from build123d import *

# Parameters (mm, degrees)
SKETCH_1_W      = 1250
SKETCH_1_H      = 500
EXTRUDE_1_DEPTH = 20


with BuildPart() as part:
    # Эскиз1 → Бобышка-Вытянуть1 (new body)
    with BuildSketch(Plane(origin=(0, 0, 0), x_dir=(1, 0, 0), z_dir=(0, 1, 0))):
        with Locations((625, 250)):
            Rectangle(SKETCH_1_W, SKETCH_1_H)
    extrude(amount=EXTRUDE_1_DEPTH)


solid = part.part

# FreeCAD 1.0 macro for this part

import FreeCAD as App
import Part
import Sketcher

V = App.Vector
Q = App.Units.Quantity

doc = App.newDocument("Part")
body = doc.addObject("PartDesign::Body", "Body")

# Sketch on XZ plane
sketch1 = body.newObject("Sketcher::SketchObject", "Sketch")
sketch1.AttachmentSupport = (doc.getObject("XZ_Plane"), [""])
sketch1.MapMode = "FlatFace"
sketch1.addGeometry(Part.LineSegment(V(0, -500, 0), V(0, 0, 0)), False)
sketch1.addGeometry(Part.LineSegment(V(0, 0, 0), V(1250, 0, 0)), False)
sketch1.addGeometry(Part.LineSegment(V(1250, 0, 0), V(1250, -500, 0)), False)
sketch1.addGeometry(Part.LineSegment(V(1250, -500, 0), V(0, -500, 0)), False)
sketch1.addConstraint(Sketcher.Constraint("Coincident", 0, 2, 1, 1))
sketch1.addConstraint(Sketcher.Constraint("Coincident", 1, 2, 2, 1))
sketch1.addConstraint(Sketcher.Constraint("Coincident", 2, 2, 3, 1))
sketch1.addConstraint(Sketcher.Constraint("Coincident", 3, 2, 0, 1))
sketch1.addConstraint(Sketcher.Constraint("Vertical", 0))
sketch1.addConstraint(Sketcher.Constraint("Horizontal", 1))
sketch1.addConstraint(Sketcher.Constraint("Vertical", 2))
sketch1.addConstraint(Sketcher.Constraint("Horizontal", 3))
sketch1.addConstraint(Sketcher.Constraint("Coincident", 0, 2, -1, 1))
sketch1.addConstraint(Sketcher.Constraint("DistanceX", 1, 1, 1, 2, Q("1250 mm")))
sketch1.addConstraint(Sketcher.Constraint("DistanceY", 0, 1, 0, 2, Q("500 mm")))
pad1 = body.newObject("PartDesign::Pad", "Pad")
pad1.Profile = sketch1
pad1.Length = 20
pad1.Reversed = True

doc.recompute()
